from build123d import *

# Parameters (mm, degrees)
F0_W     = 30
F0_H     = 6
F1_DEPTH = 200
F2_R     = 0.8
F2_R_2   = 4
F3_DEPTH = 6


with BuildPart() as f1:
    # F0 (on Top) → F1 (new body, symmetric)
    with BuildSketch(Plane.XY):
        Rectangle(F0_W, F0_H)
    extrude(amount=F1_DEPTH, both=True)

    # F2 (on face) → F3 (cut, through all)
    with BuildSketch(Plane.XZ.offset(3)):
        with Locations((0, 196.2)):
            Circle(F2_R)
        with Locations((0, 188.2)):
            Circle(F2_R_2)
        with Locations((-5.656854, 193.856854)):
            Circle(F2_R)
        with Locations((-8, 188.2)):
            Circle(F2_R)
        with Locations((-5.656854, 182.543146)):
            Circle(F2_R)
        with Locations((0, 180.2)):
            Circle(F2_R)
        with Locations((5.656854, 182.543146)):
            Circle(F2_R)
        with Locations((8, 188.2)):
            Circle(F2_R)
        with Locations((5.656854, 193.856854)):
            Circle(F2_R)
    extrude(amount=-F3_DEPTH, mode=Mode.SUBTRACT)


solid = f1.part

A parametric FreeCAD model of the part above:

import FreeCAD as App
import Part
import Sketcher

V = App.Vector

doc = App.newDocument("Part")
body = doc.addObject("PartDesign::Body", "Body")

# Sketch on XY plane
sketch1 = body.newObject("Sketcher::SketchObject", "Sketch")
sketch1.AttachmentSupport = (doc.getObject("XY_Plane"), [""])
sketch1.MapMode = "FlatFace"
sketch1.addGeometry([
    Part.LineSegment(V(-15, 3, 0), V(-15, -3, 0)),
    Part.LineSegment(V(-15, -3, 0), V(15, -3, 0)),
    Part.LineSegment(V(15, -3, 0), V(15, 3, 0)),
    Part.LineSegment(V(15, 3, 0), V(-15, 3, 0)),
], False)
sketch1.addConstraint([
    Sketcher.Constraint("Coincident", 0, 2, 1, 1),
    Sketcher.Constraint("Coincident", 1, 2, 2, 1),
    Sketcher.Constraint("Coincident", 2, 2, 3, 1),
    Sketcher.Constraint("Coincident", 3, 2, 0, 1),
    Sketcher.Constraint("Vertical", 0),
    Sketcher.Constraint("Horizontal", 1),
    Sketcher.Constraint("Vertical", 2),
    Sketcher.Constraint("Horizontal", 3),
    Sketcher.Constraint("Symmetric", 0, 2, 2, 2, -1, 1),
    Sketcher.Constraint("DistanceX", 1, 1, 1, 2, 30.0),
    Sketcher.Constraint("DistanceY", 0, 2, 0, 1, 6.0),
])
pad1 = body.newObject("PartDesign::Pad", "Pad")
pad1.Profile = sketch1
pad1.Length = 400
pad1.Midplane = True

# Sketch on XZ plane
sketch2 = body.newObject("Sketcher::SketchObject", "Sketch001")
sketch2.AttachmentSupport = (doc.getObject("XZ_Plane"), [""])
sketch2.MapMode = "FlatFace"
sketch2.AttachmentOffset = App.Placement(V(0, 0, 3), App.Rotation())
sketch2.addGeometry([
    Part.Circle(V(0, 196.2, 0), V(0, 0, 1), 0.8),  # 0
    Part.Circle(V(0, 188.2, 0), V(0, 0, 1), 4),  # 1
    Part.Circle(V(-5.7, 193.9, 0), V(0, 0, 1), 0.8),  # 2
    Part.Circle(V(-8, 188.2, 0), V(0, 0, 1), 0.8),  # 3
    Part.Circle(V(-5.7, 182.5, 0), V(0, 0, 1), 0.8),  # 4
    Part.Circle(V(0, 180.2, 0), V(0, 0, 1), 0.8),  # 5
    Part.Circle(V(5.7, 182.5, 0), V(0, 0, 1), 0.8),  # 6
    Part.Circle(V(8, 188.2, 0), V(0, 0, 1), 0.8),  # 7
    Part.Circle(V(5.7, 193.9, 0), V(0, 0, 1), 0.8),  # 8
], False)
sketch2.addConstraint([
    Sketcher.Constraint("Equal", 0, 2),
    Sketcher.Constraint("Equal", 2, 3),
    Sketcher.Constraint("Equal", 3, 4),
    Sketcher.Constraint("Equal", 4, 5),
    Sketcher.Constraint("Equal", 5, 6),
    Sketcher.Constraint("Equal", 6, 7),
    Sketcher.Constraint("Equal", 7, 8),
    Sketcher.Constraint("Symmetric", 4, 3, 6, 3, -2),
    Sketcher.Constraint("Symmetric", 3, 3, 7, 3, -2),
    Sketcher.Constraint("Symmetric", 2, 3, 8, 3, -2),
    Sketcher.Constraint("PointOnObject", 0, 3, -2),
    Sketcher.Constraint("PointOnObject", 1, 3, -2),
    Sketcher.Constraint("PointOnObject", 5, 3, -2),
    Sketcher.Constraint("Horizontal", 1, 3, 3, 3),
    Sketcher.Constraint("Vertical", 2, 3, 4, 3),
    Sketcher.Constraint("Diameter", 1, 8.0),
    Sketcher.Constraint("Diameter", 0, 1.6),
    Sketcher.Constraint("DistanceX", 3, 3, -1, 1, 8.0),
    Sketcher.Constraint("DistanceY", 1, 3, 0, 3, 8.0),
    Sketcher.Constraint("DistanceY", 5, 3, 1, 3, 8.0),
    Sketcher.Constraint("DistanceY", -1, 1, 0, 3, 196.2),
    Sketcher.Constraint("DistanceX", 2, 3, -1, 1, 5.656854),
    Sketcher.Constraint("DistanceY", -1, 1, 2, 3, 193.856854),
    Sketcher.Constraint("DistanceY", -1, 1, 4, 3, 182.543146),
])
pocket1 = body.newObject("PartDesign::Pocket", "Pocket")
pocket1.Profile = sketch2
pocket1.Type = "ThroughAll"

doc.recompute()
